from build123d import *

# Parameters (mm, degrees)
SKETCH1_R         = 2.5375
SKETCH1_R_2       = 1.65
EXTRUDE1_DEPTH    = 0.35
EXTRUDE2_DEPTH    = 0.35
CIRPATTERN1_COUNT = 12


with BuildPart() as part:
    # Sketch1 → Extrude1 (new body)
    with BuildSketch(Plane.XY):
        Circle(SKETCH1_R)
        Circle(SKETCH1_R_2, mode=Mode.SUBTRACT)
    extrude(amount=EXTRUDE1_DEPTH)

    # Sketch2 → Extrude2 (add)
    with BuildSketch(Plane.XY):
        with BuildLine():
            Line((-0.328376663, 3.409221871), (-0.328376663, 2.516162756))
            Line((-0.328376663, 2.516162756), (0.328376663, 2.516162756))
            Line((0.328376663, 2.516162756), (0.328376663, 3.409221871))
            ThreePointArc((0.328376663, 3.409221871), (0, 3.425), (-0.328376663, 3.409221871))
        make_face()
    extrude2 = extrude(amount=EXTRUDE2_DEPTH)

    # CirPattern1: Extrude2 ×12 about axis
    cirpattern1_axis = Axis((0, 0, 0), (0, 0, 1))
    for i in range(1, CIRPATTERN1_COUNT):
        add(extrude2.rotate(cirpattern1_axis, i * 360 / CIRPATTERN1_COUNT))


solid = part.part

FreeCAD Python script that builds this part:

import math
import FreeCAD as App
import Part
import Sketcher
from FreeCAD import Vector

doc = App.newDocument("Part")
body = doc.addObject("PartDesign::Body", "Body")

# Sketch on XY plane
sketch1 = doc.addObject("Sketcher::SketchObject", "Sketch")
body.addObject(sketch1)
sketch1.AttachmentSupport = (doc.XY_Plane, [""])
sketch1.MapMode = "FlatFace"
sketch1.addGeometry(Part.Circle(Vector(0, 0, 0), Vector(0, 0, 1), 2.5), False)
sketch1.addGeometry(Part.Circle(Vector(0, 0, 0), Vector(0, 0, 1), 1.6), False)
sketch1.addConstraint(Sketcher.Constraint("Coincident", 0, 3, -1, 1))
sketch1.addConstraint(Sketcher.Constraint("Coincident", 1, 3, -1, 1))
sketch1.addConstraint(Sketcher.Constraint("Diameter", 1, 3.3))
sketch1.addConstraint(Sketcher.Constraint("Diameter", 0, 5.075))
pad1 = doc.addObject("PartDesign::Pad", "Pad")
body.addObject(pad1)
pad1.Profile = sketch1
pad1.Length = 0.35

# Sketch on XY plane
sketch2 = doc.addObject("Sketcher::SketchObject", "Sketch001")
body.addObject(sketch2)
sketch2.AttachmentSupport = (doc.XY_Plane, [""])
sketch2.MapMode = "FlatFace"
sketch2.addGeometry(Part.LineSegment(Vector(-0.3, 3.4, 0), Vector(-0.3, 2.5, 0)), False)
sketch2.addGeometry(Part.LineSegment(Vector(-0.3, 2.5, 0), Vector(0.3, 2.5, 0)), False)
sketch2.addGeometry(Part.LineSegment(Vector(0.3, 2.5, 0), Vector(0.3, 3.4, 0)), False)
sketch2.addGeometry(Part.ArcOfCircle(Part.Circle(Vector(0, 0, 0), Vector(0, 0, 1), 3.4), math.radians(84.5), math.radians(95.5)), False)
sketch2.addConstraint(Sketcher.Constraint("Coincident", 0, 2, 1, 1))
sketch2.addConstraint(Sketcher.Constraint("Coincident", 1, 2, 2, 1))
sketch2.addConstraint(Sketcher.Constraint("Coincident", 2, 2, 3, 1))
sketch2.addConstraint(Sketcher.Constraint("Coincident", 3, 2, 0, 1))
sketch2.addConstraint(Sketcher.Constraint("Vertical", 0))
sketch2.addConstraint(Sketcher.Constraint("Horizontal", 1))
sketch2.addConstraint(Sketcher.Constraint("Vertical", 2))
sketch2.addConstraint(Sketcher.Constraint("Coincident", 3, 3, -1, 1))
sketch2.addConstraint(Sketcher.Constraint("Horizontal", 2, 2, 3, 2))
sketch2.addConstraint(Sketcher.Constraint("Radius", 3, 3.425))
sketch2.addConstraint(Sketcher.Constraint("DistanceY", 0, 2, 0, 1, 0.893059))
sketch2.addConstraint(Sketcher.Constraint("DistanceX", 1, 1, 1, 2, 0.656753))
pad2 = doc.addObject("PartDesign::Pad", "Pad001")
body.addObject(pad2)
pad2.Profile = sketch2
pad2.Length = 0.35
doc.recompute()

polarpattern = doc.addObject("PartDesign::PolarPattern", "PolarPattern")
body.addObject(polarpattern)
polarpattern.Originals = [pad2]
polarpattern.Axis = (doc.Z_Axis, [""])
polarpattern.Angle = 360
polarpattern.Occurrences = 12
body.Tip = polarpattern

doc.recompute()
